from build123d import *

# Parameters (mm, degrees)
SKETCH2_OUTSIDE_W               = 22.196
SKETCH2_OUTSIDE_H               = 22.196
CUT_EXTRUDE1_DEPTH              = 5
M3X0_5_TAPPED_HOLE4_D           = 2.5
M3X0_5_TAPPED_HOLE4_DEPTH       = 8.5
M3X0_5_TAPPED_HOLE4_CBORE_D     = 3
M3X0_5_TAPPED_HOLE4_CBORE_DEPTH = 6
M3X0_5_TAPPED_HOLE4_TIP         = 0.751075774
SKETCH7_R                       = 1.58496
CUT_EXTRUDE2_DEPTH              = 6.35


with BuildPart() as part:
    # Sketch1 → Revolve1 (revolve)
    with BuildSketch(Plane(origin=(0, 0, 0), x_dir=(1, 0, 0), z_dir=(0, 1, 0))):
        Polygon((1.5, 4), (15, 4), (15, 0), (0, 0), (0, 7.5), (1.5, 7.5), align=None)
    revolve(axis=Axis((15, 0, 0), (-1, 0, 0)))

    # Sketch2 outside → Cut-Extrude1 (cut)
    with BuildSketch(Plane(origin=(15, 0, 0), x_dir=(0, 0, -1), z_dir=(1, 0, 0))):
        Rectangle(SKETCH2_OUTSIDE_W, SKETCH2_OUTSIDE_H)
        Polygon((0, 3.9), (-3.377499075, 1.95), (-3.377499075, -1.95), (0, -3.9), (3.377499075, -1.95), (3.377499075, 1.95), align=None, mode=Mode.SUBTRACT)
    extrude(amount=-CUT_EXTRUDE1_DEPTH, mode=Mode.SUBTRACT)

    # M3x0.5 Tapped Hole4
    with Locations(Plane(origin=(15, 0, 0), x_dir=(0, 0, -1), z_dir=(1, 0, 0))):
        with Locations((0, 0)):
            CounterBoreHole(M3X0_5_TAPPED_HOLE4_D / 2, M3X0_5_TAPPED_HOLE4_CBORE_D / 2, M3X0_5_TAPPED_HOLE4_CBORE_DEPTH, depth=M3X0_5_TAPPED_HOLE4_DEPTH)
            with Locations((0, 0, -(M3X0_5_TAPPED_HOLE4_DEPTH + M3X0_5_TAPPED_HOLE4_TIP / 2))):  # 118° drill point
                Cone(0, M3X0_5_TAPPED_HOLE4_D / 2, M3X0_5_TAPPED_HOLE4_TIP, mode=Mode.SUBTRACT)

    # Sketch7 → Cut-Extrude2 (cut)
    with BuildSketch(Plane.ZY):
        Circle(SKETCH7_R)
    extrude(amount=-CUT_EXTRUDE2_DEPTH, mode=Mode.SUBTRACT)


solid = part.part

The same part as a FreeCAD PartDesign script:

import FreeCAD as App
import Part
import Sketcher
from FreeCAD import Vector
Q = App.Units.Quantity

doc = App.newDocument("Part")
params = doc.addObject("Spreadsheet::Sheet", "Params")
for row, (alias, value) in enumerate([
    ("sketch1_width", "15 mm"),
    ("sketch1_height", "4 mm"),
    ("sketch1_width2", "13.5 mm"),
    ("sketch1_height2", "3.5 mm"),
    ("revolution_angle", "360 deg"),
    ("sketch2_width", "3.9 mm"),
    ("sketch2_length", "3.9 mm"),
    ("pocket1_length", "5 mm"),
    ("sketch3_diameter", "2.5 mm"),
    ("hole_diameter", "2.5 mm"),
    ("hole_depth", "8.5 mm"),
    ("hole_cbore_diameter", "3 mm"),
    ("hole_cbore_depth", "6 mm"),
    ("pocket2_length", "6.35 mm"),
], start=1):
    params.set(f"A{row}", alias)
    params.set(f"B{row}", "=" + value)
    params.setAlias(f"B{row}", alias)

body = doc.addObject("PartDesign::Body", "Body")

sketch1 = body.newObject("Sketcher::SketchObject", "Sketch")
sketch1.AttachmentSupport = (doc.getObject("XZ_Plane"), [""])
sketch1.MapMode = "FlatFace"
sketch1.addGeometry(Part.LineSegment(Vector(15, -4, 0), Vector(1.5, -4, 0)), False)
sketch1.addGeometry(Part.LineSegment(Vector(1.5, -4, 0), Vector(1.5, -7.5, 0)), False)
sketch1.addGeometry(Part.LineSegment(Vector(1.5, -7.5, 0), Vector(0, -7.5, 0)), False)
sketch1.addGeometry(Part.LineSegment(Vector(0, -7.5, 0), Vector(0, 0, 0)), False)
sketch1.addGeometry(Part.LineSegment(Vector(0, 0, 0), Vector(15, 0, 0)), False)
sketch1.addGeometry(Part.LineSegment(Vector(15, 0, 0), Vector(15, -4, 0)), False)
sketch1.addConstraint(Sketcher.Constraint("Coincident", 0, 2, 1, 1))
sketch1.addConstraint(Sketcher.Constraint("Coincident", 1, 2, 2, 1))
sketch1.addConstraint(Sketcher.Constraint("Coincident", 2, 2, 3, 1))
sketch1.addConstraint(Sketcher.Constraint("Coincident", 3, 2, 4, 1))
sketch1.addConstraint(Sketcher.Constraint("Coincident", 4, 2, 5, 1))
sketch1.addConstraint(Sketcher.Constraint("Coincident", 5, 2, 0, 1))
sketch1.addConstraint(Sketcher.Constraint("Horizontal", 0))
sketch1.addConstraint(Sketcher.Constraint("Vertical", 1))
sketch1.addConstraint(Sketcher.Constraint("Horizontal", 2))
sketch1.addConstraint(Sketcher.Constraint("Vertical", 3))
sketch1.addConstraint(Sketcher.Constraint("Horizontal", 4))
sketch1.addConstraint(Sketcher.Constraint("Vertical", 5))
sketch1.addConstraint(Sketcher.Constraint("Coincident", 3, 2, -1, 1))
sketch1.addConstraint(Sketcher.Constraint("DistanceX", 4, 1, 4, 2, 15.0))
sketch1.addConstraint(Sketcher.Constraint("DistanceY", 5, 2, 5, 1, 4.0))
sketch1.addConstraint(Sketcher.Constraint("DistanceX", 0, 2, 0, 1, 13.5))
sketch1.addConstraint(Sketcher.Constraint("DistanceY", 1, 2, 1, 1, 3.5))
sketch1.setExpression("Constraints[13]", "Params.sketch1_width")
sketch1.setExpression("Constraints[14]", "Params.sketch1_height")
sketch1.setExpression("Constraints[15]", "Params.sketch1_width2")
sketch1.setExpression("Constraints[16]", "Params.sketch1_height2")
revolution = body.newObject("PartDesign::Revolution", "Revolution")
revolution.Profile = sketch1
revolution.ReferenceAxis = (sketch1, ["H_Axis"])
revolution.setExpression("Angle", "Params.revolution_angle")

sketch2 = body.newObject("Sketcher::SketchObject", "Sketch001")
sketch2.AttachmentSupport = (doc.getObject("YZ_Plane"), [""])
sketch2.MapMode = "FlatFace"
sketch2.AttachmentOffset = App.Placement(Vector(0, 0, 15), App.Rotation())
sketch2.addGeometry(Part.LineSegment(Vector(11.1, 11.1, 0), Vector(-11.1, 11.1, 0)), False)
sketch2.addGeometry(Part.LineSegment(Vector(-11.1, 11.1, 0), Vector(-11.1, -11.1, 0)), False)
sketch2.addGeometry(Part.LineSegment(Vector(-11.1, -11.1, 0), Vector(11.1, -11.1, 0)), False)
sketch2.addGeometry(Part.LineSegment(Vector(11.1, -11.1, 0), Vector(11.1, 11.1, 0)), False)
sketch2.addGeometry(Part.LineSegment(Vector(1.9, 3.4, 0), Vector(3.9, 0, 0)), False)
sketch2.addGeometry(Part.LineSegment(Vector(3.9, 0, 0), Vector(1.9, -3.4, 0)), False)
sketch2.addGeometry(Part.LineSegment(Vector(1.9, -3.4, 0), Vector(-1.9, -3.4, 0)), False)
sketch2.addGeometry(Part.LineSegment(Vector(-1.9, -3.4, 0), Vector(-3.9, 0, 0)), False)
sketch2.addGeometry(Part.LineSegment(Vector(-3.9, 0, 0), Vector(-1.9, 3.4, 0)), False)
sketch2.addGeometry(Part.LineSegment(Vector(-1.9, 3.4, 0), Vector(1.9, 3.4, 0)), False)
sketch2.addConstraint(Sketcher.Constraint("Coincident", 0, 2, 1, 1))
sketch2.addConstraint(Sketcher.Constraint("Coincident", 1, 2, 2, 1))
sketch2.addConstraint(Sketcher.Constraint("Coincident", 2, 2, 3, 1))
sketch2.addConstraint(Sketcher.Constraint("Coincident", 3, 2, 0, 1))
sketch2.addConstraint(Sketcher.Constraint("Coincident", 4, 2, 5, 1))
sketch2.addConstraint(Sketcher.Constraint("Coincident", 5, 2, 6, 1))
sketch2.addConstraint(Sketcher.Constraint("Coincident", 6, 2, 7, 1))
sketch2.addConstraint(Sketcher.Constraint("Coincident", 7, 2, 8, 1))
sketch2.addConstraint(Sketcher.Constraint("Coincident", 8, 2, 9, 1))
sketch2.addConstraint(Sketcher.Constraint("Coincident", 9, 2, 4, 1))
sketch2.addConstraint(Sketcher.Constraint("Horizontal", 0))
sketch2.addConstraint(Sketcher.Constraint("Vertical", 1))
sketch2.addConstraint(Sketcher.Constraint("Horizontal", 2))
sketch2.addConstraint(Sketcher.Constraint("Vertical", 3))
sketch2.addConstraint(Sketcher.Constraint("Horizontal", 6))
sketch2.addConstraint(Sketcher.Constraint("Horizontal", 9))
sketch2.addConstraint(Sketcher.Constraint("Symmetric", 0, 2, 2, 2, -1, 1))
sketch2.addConstraint(Sketcher.Constraint("Symmetric", 4, 2, 7, 2, -1, 1))
sketch2.addConstraint(Sketcher.Constraint("Symmetric", 5, 2, 8, 2, -1, 1))
sketch2.addConstraint(Sketcher.Constraint("PointOnObject", 4, 2, -1))
sketch2.addConstraint(Sketcher.Constraint("Parallel", 4, 7))
sketch2.addConstraint(Sketcher.Constraint("Vertical", 6, 2, 8, 2))
sketch2.addConstraint(Sketcher.Constraint("Equal", 2, 1))
sketch2.addConstraint(Sketcher.Constraint("Angle", 4, Q("-60 deg")))
sketch2.addConstraint(Sketcher.Constraint("DistanceX", 6, 2, 6, 1, 3.9))
sketch2.addConstraint(Sketcher.Constraint("Distance", 4, 3.9))
sketch2.addConstraint(Sketcher.Constraint("DistanceX", 0, 2, 0, 1, 22.196))
sketch2.setExpression("Constraints[24]", "Params.sketch2_width")
sketch2.setExpression("Constraints[25]", "Params.sketch2_length")
pocket1 = body.newObject("PartDesign::Pocket", "Pocket")
pocket1.Profile = sketch2
pocket1.setExpression("Length", "Params.pocket1_length")

sketch3 = body.newObject("Sketcher::SketchObject", "Sketch002")
sketch3.AttachmentSupport = (doc.getObject("YZ_Plane"), [""])
sketch3.MapMode = "FlatFace"
sketch3.AttachmentOffset = App.Placement(Vector(0, 0, 15), App.Rotation())
sketch3.addGeometry(Part.Circle(Vector(0, 0, 0), Vector(0, 0, 1), 1.2), False)
sketch3.addConstraint(Sketcher.Constraint("Coincident", 0, 3, -1, 1))
sketch3.addConstraint(Sketcher.Constraint("Diameter", 0, 2.5))
sketch3.setExpression("Constraints[1]", "Params.sketch3_diameter")
doc.recompute()
hole = body.newObject("PartDesign::Hole", "Hole")
hole.Profile = sketch3
hole.ThreadType = "None"
hole.setExpression("Diameter", "Params.hole_diameter")
hole.DepthType = "Dimension"
hole.setExpression("Depth", "Params.hole_depth")
hole.DrillPoint = "Angled"
hole.DrillPointAngle = 118
hole.HoleCutType = "Counterbore"
hole.setExpression("HoleCutDiameter", "Params.hole_cbore_diameter")
hole.setExpression("HoleCutDepth", "Params.hole_cbore_depth")

sketch4 = body.newObject("Sketcher::SketchObject", "Sketch003")
sketch4.AttachmentSupport = (doc.getObject("YZ_Plane"), [""])
sketch4.MapMode = "FlatFace"
sketch4.addGeometry(Part.Circle(Vector(0, 0, 0), Vector(0, 0, 1), 1.6), False)
sketch4.addConstraint(Sketcher.Constraint("Coincident", 0, 3, -1, 1))
sketch4.addConstraint(Sketcher.Constraint("Diameter", 0, 3.16992))
pocket2 = body.newObject("PartDesign::Pocket", "Pocket001")
pocket2.Profile = sketch4
pocket2.setExpression("Length", "Params.pocket2_length")
pocket2.Reversed = True

doc.recompute()
